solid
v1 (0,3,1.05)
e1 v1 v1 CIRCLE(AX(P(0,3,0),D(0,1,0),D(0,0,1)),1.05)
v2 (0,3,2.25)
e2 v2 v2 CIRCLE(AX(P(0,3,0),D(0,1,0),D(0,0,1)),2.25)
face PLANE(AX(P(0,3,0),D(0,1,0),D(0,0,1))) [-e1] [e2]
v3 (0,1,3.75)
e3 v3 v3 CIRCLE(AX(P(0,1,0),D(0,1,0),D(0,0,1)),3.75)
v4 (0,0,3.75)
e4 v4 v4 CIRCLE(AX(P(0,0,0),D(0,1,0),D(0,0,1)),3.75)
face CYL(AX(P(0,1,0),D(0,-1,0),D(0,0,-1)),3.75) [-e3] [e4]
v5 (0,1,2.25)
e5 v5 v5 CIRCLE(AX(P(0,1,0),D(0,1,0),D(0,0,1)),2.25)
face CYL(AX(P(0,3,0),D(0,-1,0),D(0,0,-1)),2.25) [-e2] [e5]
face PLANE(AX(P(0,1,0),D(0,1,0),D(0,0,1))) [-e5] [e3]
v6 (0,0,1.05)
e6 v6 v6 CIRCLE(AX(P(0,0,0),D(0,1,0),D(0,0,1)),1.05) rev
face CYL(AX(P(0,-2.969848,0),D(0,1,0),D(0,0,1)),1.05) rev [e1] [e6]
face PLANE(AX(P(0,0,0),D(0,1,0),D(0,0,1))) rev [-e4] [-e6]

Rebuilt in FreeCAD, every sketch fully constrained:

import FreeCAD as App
import Part
import Sketcher
Q = App.Units.Quantity

doc = App.newDocument("Part")
body = doc.addObject("PartDesign::Body", "Body")

# Sketch on XZ plane
sketch1 = body.newObject("Sketcher::SketchObject", "Sketch")
sketch1.AttachmentSupport = (doc.getObject("XZ_Plane"), [""])
sketch1.MapMode = "FlatFace"
sketch1.addGeometry(Part.Circle(App.Vector(0, 0, 0), App.Vector(0, 0, 1), 3.75), False)
sketch1.addConstraint(Sketcher.Constraint("Coincident", 0, 3, -1, 1))
sketch1.addConstraint(Sketcher.Constraint("Diameter", 0, Q("7.5 mm")))
pad1 = body.newObject("PartDesign::Pad", "Pad")
pad1.Profile = sketch1
pad1.Length = 1
pad1.Reversed = True

# Sketch on XZ plane
sketch2 = body.newObject("Sketcher::SketchObject", "Sketch001")
sketch2.AttachmentSupport = (doc.getObject("XZ_Plane"), [""])
sketch2.MapMode = "FlatFace"
sketch2.AttachmentOffset = App.Placement(App.Vector(0, 0, -1), App.Rotation())
sketch2.addGeometry(Part.Circle(App.Vector(0, 0, 0), App.Vector(0, 0, 1), 2.25), False)
sketch2.addConstraint(Sketcher.Constraint("Coincident", 0, 3, -1, 1))
sketch2.addConstraint(Sketcher.Constraint("Diameter", 0, Q("4.5 mm")))
pad2 = body.newObject("PartDesign::Pad", "Pad001")
pad2.Profile = sketch2
pad2.Length = 2
pad2.Reversed = True

# Sketch on XZ plane
sketch3 = body.newObject("Sketcher::SketchObject", "Sketch002")
sketch3.AttachmentSupport = (doc.getObject("XZ_Plane"), [""])
sketch3.MapMode = "FlatFace"
sketch3.AttachmentOffset = App.Placement(App.Vector(0, 0, -3), App.Rotation())
sketch3.addGeometry(Part.Circle(App.Vector(0, 0, 0), App.Vector(0, 0, 1), 1.05), False)
sketch3.addConstraint(Sketcher.Constraint("Coincident", 0, 3, -1, 1))
sketch3.addConstraint(Sketcher.Constraint("Diameter", 0, Q("2.1 mm")))
pocket1 = body.newObject("PartDesign::Pocket", "Pocket")
pocket1.Profile = sketch3
pocket1.Length = 3
pocket1.Reversed = True

doc.recompute()
